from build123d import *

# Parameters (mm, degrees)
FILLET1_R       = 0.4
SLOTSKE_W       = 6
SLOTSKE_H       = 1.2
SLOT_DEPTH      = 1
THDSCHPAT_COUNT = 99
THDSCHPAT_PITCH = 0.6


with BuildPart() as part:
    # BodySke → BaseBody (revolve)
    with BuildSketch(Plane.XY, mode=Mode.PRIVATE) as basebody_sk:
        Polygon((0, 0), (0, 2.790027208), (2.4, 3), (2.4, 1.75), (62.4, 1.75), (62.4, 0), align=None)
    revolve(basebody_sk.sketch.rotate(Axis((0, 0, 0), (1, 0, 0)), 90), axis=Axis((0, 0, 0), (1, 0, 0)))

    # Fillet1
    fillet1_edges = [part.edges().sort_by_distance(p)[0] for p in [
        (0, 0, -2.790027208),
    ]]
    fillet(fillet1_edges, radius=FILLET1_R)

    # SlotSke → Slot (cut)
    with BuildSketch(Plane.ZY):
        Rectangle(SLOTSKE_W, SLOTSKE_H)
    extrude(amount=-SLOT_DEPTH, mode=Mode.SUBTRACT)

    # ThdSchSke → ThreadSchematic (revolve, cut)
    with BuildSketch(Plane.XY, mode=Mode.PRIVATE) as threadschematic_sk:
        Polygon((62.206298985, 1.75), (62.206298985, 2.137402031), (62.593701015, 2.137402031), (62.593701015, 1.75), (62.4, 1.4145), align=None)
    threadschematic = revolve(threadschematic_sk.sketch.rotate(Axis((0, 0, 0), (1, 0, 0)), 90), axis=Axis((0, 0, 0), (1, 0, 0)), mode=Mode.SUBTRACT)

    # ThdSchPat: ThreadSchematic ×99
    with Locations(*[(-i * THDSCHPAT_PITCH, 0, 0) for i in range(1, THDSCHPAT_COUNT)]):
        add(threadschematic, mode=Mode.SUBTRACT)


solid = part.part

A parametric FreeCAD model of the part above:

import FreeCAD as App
import Part
import Sketcher
from FreeCAD import Vector
Q = App.Units.Quantity


def edges_at(feature, points):
    """Names of the edges that pass closest to the given points."""
    edges = feature.Shape.Edges
    near = lambda p: min(range(len(edges)), key=lambda i: edges[i].distToShape(Part.Vertex(*p))[0])
    return sorted({f"Edge{near(p) + 1}" for p in points})

doc = App.newDocument("Part")
params = doc.addObject("Spreadsheet::Sheet", "Params")
for row, (alias, value) in enumerate([
    ("sketch1_width", "60 mm"),
    ("sketch1_width2", "62.4 mm"),
    ("sketch1_height", "1.75 mm"),
    ("revolution_angle", "360 deg"),
    ("fillet_radius", "0.4 mm"),
    ("sketch2_height", "6 mm"),
    ("sketch2_width", "1.2 mm"),
    ("pocket1_length", "1 mm"),
    ("groove_angle", "360 deg"),
    ("linearpattern_pitch", "0.6 mm"),
], start=1):
    params.set(f"A{row}", alias)
    params.set(f"B{row}", "=" + value)
    params.setAlias(f"B{row}", alias)

body = doc.addObject("PartDesign::Body", "Body")

sketch1 = body.newObject("Sketcher::SketchObject", "Sketch")
sketch1.AttachmentSupport = (doc.getObject("XY_Plane"), [""])
sketch1.MapMode = "FlatFace"
sketch1.addGeometry([
    Part.LineSegment(Vector(0, 2.8, 0), Vector(0, 0, 0)),
    Part.LineSegment(Vector(0, 0, 0), Vector(62.4, 0, 0)),
    Part.LineSegment(Vector(62.4, 0, 0), Vector(62.4, 1.8, 0)),
    Part.LineSegment(Vector(62.4, 1.8, 0), Vector(2.4, 1.8, 0)),
    Part.LineSegment(Vector(2.4, 1.8, 0), Vector(2.4, 3, 0)),
    Part.LineSegment(Vector(2.4, 3, 0), Vector(0, 2.8, 0)),
], False)
sketch1.addConstraint([
    Sketcher.Constraint("Coincident", 0, 2, 1, 1),
    Sketcher.Constraint("Coincident", 1, 2, 2, 1),
    Sketcher.Constraint("Coincident", 2, 2, 3, 1),
    Sketcher.Constraint("Coincident", 3, 2, 4, 1),
    Sketcher.Constraint("Coincident", 4, 2, 5, 1),
    Sketcher.Constraint("Coincident", 5, 2, 0, 1),
    Sketcher.Constraint("Vertical", 0),
    Sketcher.Constraint("Horizontal", 1),
    Sketcher.Constraint("Vertical", 2),
    Sketcher.Constraint("Horizontal", 3),
    Sketcher.Constraint("Vertical", 4),
    Sketcher.Constraint("Coincident", 0, 2, -1, 1),
    Sketcher.Constraint("DistanceX", 3, 2, 3, 1, 60.0),
    Sketcher.Constraint("Angle", 5, Q("-175 deg")),
    Sketcher.Constraint("DistanceX", 1, 1, 1, 2, 62.4),
    Sketcher.Constraint("DistanceY", -1, 1, 4, 2, 3.0),
    Sketcher.Constraint("DistanceY", 2, 1, 2, 2, 1.75),
])
sketch1.setExpression("Constraints[12]", "Params.sketch1_width")
sketch1.setExpression("Constraints[14]", "Params.sketch1_width2")
sketch1.setExpression("Constraints[16]", "Params.sketch1_height")
revolution = body.newObject("PartDesign::Revolution", "Revolution")
revolution.Profile = sketch1
revolution.ReferenceAxis = (sketch1, ["H_Axis"])
revolution.setExpression("Angle", "Params.revolution_angle")
doc.recompute()

fillet = body.newObject("PartDesign::Fillet", "Fillet")
fillet.Base = (revolution, edges_at(revolution, [(0, 0, -2.79)]))
fillet.setExpression("Radius", "Params.fillet_radius")

sketch2 = body.newObject("Sketcher::SketchObject", "Sketch001")
sketch2.AttachmentSupport = (doc.getObject("YZ_Plane"), [""])
sketch2.MapMode = "FlatFace"
sketch2.addGeometry([
    Part.LineSegment(Vector(0.6, -3, 0), Vector(-0.6, -3, 0)),
    Part.LineSegment(Vector(-0.6, -3, 0), Vector(-0.6, 3, 0)),
    Part.LineSegment(Vector(-0.6, 3, 0), Vector(0.6, 3, 0)),
    Part.LineSegment(Vector(0.6, 3, 0), Vector(0.6, -3, 0)),
], False)
sketch2.addConstraint([
    Sketcher.Constraint("Coincident", 0, 2, 1, 1),
    Sketcher.Constraint("Coincident", 1, 2, 2, 1),
    Sketcher.Constraint("Coincident", 2, 2, 3, 1),
    Sketcher.Constraint("Coincident", 3, 2, 0, 1),
    Sketcher.Constraint("Horizontal", 0),
    Sketcher.Constraint("Vertical", 1),
    Sketcher.Constraint("Horizontal", 2),
    Sketcher.Constraint("Vertical", 3),
    Sketcher.Constraint("Symmetric", 0, 2, 2, 2, -1, 1),
    Sketcher.Constraint("DistanceY", 1, 1, 1, 2, 6.0),
    Sketcher.Constraint("DistanceX", 0, 2, 0, 1, 1.2),
])
sketch2.setExpression("Constraints[9]", "Params.sketch2_height")
sketch2.setExpression("Constraints[10]", "Params.sketch2_width")
pocket1 = body.newObject("PartDesign::Pocket", "Pocket")
pocket1.Profile = sketch2
pocket1.setExpression("Length", "Params.pocket1_length")
pocket1.Reversed = True

sketch3 = body.newObject("Sketcher::SketchObject", "Sketch002")
sketch3.AttachmentSupport = (doc.getObject("XY_Plane"), [""])
sketch3.MapMode = "FlatFace"
sketch3.addGeometry([
    Part.LineSegment(Vector(62.21, 2.14, 0), Vector(62.21, 1.75, 0)),
    Part.LineSegment(Vector(62.21, 1.75, 0), Vector(62.4, 1.41, 0)),
    Part.LineSegment(Vector(62.4, 1.41, 0), Vector(62.59, 1.75, 0)),
    Part.LineSegment(Vector(62.59, 1.75, 0), Vector(62.59, 2.14, 0)),
    Part.LineSegment(Vector(62.59, 2.14, 0), Vector(62.21, 2.14, 0)),
], False)
sketch3.addConstraint([
    Sketcher.Constraint("Coincident", 0, 2, 1, 1),
    Sketcher.Constraint("Coincident", 1, 2, 2, 1),
    Sketcher.Constraint("Coincident", 2, 2, 3, 1),
    Sketcher.Constraint("Coincident", 3, 2, 4, 1),
    Sketcher.Constraint("Coincident", 4, 2, 0, 1),
    Sketcher.Constraint("Vertical", 0),
    Sketcher.Constraint("Vertical", 3),
    Sketcher.Constraint("Horizontal", 4),
    Sketcher.Constraint("Horizontal", 0, 2, 2, 2),
    Sketcher.Constraint("Equal", 4, 0),
    Sketcher.Constraint("Equal", 1, 2),
    Sketcher.Constraint("Angle", 1, Q("-60 deg")),
    Sketcher.Constraint("DistanceX", -1, 1, 1, 2, 62.4),
    Sketcher.Constraint("DistanceY", -1, 1, 0, 2, 1.75),
    Sketcher.Constraint("DistanceX", -1, 1, 0, 2, 62.206299),
])
groove = body.newObject("PartDesign::Groove", "Groove")
groove.Profile = sketch3
groove.ReferenceAxis = (sketch3, ["H_Axis"])
groove.setExpression("Angle", "Params.groove_angle")
doc.recompute()

linearpattern = body.newObject("PartDesign::LinearPattern", "LinearPattern")
linearpattern.Originals = [groove]
linearpattern.Direction = (doc.getObject("X_Axis"), [""])
linearpattern.Mode = "offset"
linearpattern.setExpression("Offset", "Params.linearpattern_pitch")
linearpattern.Occurrences = 99
linearpattern.Reversed = True
body.Tip = linearpattern

doc.recompute()
